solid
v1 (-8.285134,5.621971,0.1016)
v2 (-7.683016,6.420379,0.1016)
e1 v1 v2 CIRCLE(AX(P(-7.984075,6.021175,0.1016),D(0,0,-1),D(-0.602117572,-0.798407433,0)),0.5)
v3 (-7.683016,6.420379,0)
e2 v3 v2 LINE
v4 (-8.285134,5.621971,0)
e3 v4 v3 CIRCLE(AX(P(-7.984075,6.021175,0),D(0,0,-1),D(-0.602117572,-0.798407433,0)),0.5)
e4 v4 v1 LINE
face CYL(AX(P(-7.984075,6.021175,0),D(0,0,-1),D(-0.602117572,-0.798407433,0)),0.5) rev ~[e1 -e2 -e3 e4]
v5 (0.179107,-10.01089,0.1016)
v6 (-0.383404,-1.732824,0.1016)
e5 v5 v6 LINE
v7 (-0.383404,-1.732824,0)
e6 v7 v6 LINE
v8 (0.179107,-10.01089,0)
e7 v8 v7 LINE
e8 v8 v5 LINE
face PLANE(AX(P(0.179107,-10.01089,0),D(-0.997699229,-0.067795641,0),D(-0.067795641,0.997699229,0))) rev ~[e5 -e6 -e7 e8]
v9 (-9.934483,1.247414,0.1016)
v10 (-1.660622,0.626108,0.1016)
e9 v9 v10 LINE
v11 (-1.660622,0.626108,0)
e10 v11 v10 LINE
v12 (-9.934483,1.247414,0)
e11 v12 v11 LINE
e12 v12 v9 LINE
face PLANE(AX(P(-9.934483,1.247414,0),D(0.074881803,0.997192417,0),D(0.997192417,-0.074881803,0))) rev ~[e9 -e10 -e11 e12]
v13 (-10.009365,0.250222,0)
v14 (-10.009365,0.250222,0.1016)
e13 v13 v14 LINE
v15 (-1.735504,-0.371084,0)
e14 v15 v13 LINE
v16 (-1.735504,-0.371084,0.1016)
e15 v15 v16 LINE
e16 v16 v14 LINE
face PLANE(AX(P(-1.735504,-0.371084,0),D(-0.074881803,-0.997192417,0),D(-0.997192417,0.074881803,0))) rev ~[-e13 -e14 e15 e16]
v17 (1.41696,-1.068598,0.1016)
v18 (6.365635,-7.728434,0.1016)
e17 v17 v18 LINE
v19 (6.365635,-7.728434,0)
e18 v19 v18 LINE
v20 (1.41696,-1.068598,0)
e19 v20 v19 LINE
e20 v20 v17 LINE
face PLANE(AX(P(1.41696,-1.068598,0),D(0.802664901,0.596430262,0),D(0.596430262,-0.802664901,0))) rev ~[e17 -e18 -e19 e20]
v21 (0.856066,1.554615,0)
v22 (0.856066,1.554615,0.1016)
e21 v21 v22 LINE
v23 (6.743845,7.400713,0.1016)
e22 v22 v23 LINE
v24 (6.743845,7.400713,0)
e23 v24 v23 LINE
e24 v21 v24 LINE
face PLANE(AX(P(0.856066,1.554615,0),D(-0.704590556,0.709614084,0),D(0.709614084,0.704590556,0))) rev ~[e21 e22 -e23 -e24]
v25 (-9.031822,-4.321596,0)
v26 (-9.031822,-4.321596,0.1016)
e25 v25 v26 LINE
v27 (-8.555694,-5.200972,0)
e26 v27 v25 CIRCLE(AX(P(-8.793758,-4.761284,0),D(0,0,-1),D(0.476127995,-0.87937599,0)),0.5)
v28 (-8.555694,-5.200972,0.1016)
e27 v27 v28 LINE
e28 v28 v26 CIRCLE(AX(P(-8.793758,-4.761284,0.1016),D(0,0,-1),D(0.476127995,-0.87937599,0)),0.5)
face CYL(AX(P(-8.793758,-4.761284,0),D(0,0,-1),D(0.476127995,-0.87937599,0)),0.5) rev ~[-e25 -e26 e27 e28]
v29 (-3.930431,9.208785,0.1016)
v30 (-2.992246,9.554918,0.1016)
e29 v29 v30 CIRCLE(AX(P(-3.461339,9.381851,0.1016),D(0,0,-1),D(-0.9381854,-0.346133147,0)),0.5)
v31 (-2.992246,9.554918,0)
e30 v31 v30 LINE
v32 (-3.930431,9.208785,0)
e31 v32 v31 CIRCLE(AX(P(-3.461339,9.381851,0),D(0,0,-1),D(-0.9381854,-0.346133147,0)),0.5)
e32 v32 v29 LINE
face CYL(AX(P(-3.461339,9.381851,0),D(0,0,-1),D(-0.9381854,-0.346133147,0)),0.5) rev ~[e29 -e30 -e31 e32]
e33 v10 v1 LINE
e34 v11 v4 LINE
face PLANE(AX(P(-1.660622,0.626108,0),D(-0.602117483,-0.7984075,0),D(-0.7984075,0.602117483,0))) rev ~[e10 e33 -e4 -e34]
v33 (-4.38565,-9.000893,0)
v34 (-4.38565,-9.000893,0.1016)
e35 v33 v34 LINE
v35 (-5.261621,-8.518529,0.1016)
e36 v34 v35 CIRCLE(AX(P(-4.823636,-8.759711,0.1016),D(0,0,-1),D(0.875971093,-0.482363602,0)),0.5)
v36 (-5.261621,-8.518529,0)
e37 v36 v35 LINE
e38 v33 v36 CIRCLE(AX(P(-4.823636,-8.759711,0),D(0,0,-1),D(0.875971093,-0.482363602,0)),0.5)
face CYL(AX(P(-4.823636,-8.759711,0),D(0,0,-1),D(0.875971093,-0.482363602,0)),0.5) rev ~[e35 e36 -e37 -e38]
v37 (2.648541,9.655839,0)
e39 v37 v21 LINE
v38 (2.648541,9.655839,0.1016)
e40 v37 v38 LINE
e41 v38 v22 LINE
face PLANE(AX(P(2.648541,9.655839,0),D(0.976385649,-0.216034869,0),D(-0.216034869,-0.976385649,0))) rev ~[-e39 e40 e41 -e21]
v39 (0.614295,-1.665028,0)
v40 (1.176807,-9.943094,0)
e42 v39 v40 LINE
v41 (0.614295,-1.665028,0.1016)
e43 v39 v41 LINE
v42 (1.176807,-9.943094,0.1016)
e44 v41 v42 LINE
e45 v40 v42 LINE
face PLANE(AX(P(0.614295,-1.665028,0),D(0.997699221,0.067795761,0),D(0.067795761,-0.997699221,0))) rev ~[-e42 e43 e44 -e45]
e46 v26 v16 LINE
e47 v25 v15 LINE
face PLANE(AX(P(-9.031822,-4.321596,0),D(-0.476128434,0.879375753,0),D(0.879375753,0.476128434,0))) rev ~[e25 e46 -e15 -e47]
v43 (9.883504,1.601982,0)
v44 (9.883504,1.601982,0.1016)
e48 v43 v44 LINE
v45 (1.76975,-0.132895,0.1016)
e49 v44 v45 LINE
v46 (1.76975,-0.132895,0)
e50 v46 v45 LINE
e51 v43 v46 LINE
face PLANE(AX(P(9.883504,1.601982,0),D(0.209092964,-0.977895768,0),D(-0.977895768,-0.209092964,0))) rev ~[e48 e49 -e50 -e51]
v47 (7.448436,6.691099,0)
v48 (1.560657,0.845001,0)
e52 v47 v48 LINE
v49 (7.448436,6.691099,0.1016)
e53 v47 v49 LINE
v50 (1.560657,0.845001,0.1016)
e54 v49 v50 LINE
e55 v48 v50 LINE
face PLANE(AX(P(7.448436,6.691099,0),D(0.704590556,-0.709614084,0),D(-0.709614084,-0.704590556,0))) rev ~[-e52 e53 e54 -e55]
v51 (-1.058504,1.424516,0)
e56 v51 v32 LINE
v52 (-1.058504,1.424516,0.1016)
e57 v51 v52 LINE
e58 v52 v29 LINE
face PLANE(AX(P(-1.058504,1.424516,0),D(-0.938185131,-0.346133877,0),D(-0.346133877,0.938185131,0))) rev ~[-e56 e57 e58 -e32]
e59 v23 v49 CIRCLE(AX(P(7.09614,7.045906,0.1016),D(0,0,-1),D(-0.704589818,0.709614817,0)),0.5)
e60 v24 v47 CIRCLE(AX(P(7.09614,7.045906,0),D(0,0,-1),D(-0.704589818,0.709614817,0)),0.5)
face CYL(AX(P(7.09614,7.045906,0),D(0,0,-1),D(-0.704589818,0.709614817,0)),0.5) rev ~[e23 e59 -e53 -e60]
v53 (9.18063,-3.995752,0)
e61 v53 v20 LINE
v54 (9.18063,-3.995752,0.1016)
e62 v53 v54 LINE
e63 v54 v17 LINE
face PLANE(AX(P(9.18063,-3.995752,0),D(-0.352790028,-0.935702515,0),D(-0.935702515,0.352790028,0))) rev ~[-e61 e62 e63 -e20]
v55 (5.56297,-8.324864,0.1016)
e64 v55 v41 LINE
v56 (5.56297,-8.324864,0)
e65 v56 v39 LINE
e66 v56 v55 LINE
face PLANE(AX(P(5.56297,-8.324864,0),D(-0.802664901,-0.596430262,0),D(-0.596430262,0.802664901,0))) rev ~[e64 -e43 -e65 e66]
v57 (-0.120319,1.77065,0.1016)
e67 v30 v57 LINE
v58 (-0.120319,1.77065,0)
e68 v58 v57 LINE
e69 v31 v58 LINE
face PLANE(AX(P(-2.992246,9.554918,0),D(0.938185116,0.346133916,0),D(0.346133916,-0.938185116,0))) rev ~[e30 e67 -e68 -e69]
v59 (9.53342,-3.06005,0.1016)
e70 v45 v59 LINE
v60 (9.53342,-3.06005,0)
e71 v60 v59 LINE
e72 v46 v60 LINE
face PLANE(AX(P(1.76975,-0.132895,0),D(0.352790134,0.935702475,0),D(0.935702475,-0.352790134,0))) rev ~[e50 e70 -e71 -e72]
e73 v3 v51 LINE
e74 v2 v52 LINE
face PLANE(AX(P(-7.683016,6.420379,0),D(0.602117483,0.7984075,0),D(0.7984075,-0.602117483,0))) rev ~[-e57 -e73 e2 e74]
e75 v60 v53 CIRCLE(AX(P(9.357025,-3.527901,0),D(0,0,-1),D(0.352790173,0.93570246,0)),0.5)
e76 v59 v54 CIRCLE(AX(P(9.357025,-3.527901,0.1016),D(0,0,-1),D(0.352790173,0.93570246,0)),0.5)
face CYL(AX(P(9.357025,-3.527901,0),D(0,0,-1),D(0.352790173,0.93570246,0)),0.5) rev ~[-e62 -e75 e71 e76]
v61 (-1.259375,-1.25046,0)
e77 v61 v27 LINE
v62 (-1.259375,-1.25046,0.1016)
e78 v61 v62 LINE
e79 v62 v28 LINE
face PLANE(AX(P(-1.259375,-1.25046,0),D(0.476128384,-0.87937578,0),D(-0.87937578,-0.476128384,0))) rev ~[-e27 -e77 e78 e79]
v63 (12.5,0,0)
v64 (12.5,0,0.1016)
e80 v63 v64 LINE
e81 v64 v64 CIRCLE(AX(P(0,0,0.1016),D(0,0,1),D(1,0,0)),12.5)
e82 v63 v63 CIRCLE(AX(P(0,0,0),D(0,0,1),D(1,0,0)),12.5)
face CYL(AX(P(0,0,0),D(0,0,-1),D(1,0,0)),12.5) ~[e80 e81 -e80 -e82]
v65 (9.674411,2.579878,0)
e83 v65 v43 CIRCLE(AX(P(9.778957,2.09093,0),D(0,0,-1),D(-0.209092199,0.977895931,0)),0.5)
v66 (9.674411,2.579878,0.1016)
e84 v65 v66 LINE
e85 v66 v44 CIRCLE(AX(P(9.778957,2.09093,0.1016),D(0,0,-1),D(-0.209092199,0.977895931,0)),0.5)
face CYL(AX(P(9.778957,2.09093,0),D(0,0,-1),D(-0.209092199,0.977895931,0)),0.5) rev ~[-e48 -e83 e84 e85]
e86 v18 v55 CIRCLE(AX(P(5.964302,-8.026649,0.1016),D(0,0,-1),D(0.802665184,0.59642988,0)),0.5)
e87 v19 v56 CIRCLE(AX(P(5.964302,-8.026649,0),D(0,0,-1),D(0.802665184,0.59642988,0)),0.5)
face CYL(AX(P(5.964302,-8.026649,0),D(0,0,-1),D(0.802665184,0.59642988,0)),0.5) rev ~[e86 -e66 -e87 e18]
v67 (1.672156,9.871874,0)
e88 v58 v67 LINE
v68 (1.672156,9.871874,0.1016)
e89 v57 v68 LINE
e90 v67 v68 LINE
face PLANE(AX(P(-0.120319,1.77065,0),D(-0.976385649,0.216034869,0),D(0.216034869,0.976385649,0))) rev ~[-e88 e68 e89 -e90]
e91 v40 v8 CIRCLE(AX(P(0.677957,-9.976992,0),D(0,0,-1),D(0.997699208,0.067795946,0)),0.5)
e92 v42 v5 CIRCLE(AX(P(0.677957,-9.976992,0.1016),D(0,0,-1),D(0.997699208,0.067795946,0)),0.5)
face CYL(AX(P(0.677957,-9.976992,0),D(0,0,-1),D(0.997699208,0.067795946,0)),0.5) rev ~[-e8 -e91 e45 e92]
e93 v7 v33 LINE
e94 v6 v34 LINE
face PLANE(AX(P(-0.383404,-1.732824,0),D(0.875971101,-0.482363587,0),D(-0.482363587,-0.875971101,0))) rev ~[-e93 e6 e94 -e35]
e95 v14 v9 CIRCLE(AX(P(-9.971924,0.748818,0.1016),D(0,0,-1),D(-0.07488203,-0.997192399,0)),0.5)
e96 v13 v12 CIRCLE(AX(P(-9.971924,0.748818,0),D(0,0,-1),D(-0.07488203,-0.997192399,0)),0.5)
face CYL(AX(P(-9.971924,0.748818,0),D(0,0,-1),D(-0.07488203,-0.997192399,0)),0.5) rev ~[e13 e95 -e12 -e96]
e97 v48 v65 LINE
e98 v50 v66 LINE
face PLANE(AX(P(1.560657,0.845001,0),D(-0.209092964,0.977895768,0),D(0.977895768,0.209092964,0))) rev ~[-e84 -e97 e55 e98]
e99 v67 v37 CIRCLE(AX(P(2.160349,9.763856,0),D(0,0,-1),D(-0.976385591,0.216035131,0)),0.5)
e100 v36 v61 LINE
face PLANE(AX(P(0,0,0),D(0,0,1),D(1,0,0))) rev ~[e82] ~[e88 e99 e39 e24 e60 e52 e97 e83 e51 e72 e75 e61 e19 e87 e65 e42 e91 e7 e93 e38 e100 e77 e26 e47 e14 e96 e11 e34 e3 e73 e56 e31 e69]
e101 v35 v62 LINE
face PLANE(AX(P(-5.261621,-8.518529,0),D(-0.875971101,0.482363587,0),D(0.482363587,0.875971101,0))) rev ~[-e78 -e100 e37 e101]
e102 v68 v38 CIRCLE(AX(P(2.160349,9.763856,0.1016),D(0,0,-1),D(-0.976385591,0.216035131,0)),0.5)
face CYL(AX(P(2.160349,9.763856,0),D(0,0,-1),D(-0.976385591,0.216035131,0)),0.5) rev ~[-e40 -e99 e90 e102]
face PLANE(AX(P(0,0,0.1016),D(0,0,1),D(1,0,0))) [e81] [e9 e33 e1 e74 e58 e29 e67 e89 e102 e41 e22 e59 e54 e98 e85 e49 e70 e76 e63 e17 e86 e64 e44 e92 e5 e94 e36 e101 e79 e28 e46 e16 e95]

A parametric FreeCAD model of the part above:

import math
import FreeCAD as App
import Part
import Sketcher

doc = App.newDocument("Part")
body = doc.addObject("PartDesign::Body", "Body")

sketch1 = body.newObject("Sketcher::SketchObject", "Sketch")
sketch1.AttachmentSupport = (doc.getObject("XY_Plane"), [""])
sketch1.MapMode = "FlatFace"
sketch1.addGeometry([
    Part.Circle(App.Vector(0, 0, 0), App.Vector(0, 0, 1), 12.5),
    Part.ArcOfCircle(Part.Circle(App.Vector(2.160349, 9.763856, 0), App.Vector(0, 0, 1), 0.5), math.radians(-12.476263), math.radians(167.523737)),
    Part.LineSegment(App.Vector(2.648541, 9.655839, 0), App.Vector(0.856066, 1.554615, 0)),
    Part.LineSegment(App.Vector(0.856066, 1.554615, 0), App.Vector(6.743845, 7.400713, 0)),
    Part.ArcOfCircle(Part.Circle(App.Vector(7.09614, 7.045906, 0), App.Vector(0, 0, 1), 0.5), math.radians(-45.203422), math.radians(134.796416)),
    Part.LineSegment(App.Vector(7.448436, 6.691099, 0), App.Vector(1.560657, 0.845001, 0)),
    Part.LineSegment(App.Vector(1.560657, 0.845001, 0), App.Vector(9.674411, 2.579878, 0)),
    Part.ArcOfCircle(Part.Circle(App.Vector(9.778957, 2.09093, 0), App.Vector(0, 0, 1), 0.5), math.radians(-77.930754), math.radians(102.069158)),
    Part.LineSegment(App.Vector(9.883504, 1.601982, 0), App.Vector(1.76975, -0.132895, 0)),
    Part.LineSegment(App.Vector(1.76975, -0.132895, 0), App.Vector(9.53342, -3.06005, 0)),
    Part.ArcOfCircle(Part.Circle(App.Vector(9.357025, -3.527901, 0), App.Vector(0, 0, 1), 0.5), math.radians(-110.65807), math.radians(69.34193)),
    Part.LineSegment(App.Vector(9.18063, -3.995752, 0), App.Vector(1.41696, -1.068598, 0)),
    Part.LineSegment(App.Vector(1.41696, -1.068598, 0), App.Vector(6.365635, -7.728434, 0)),
    Part.ArcOfCircle(Part.Circle(App.Vector(5.964302, -8.026649, 0), App.Vector(0, 0, 1), 0.5), math.radians(-143.385344), math.radians(36.614632)),
    Part.LineSegment(App.Vector(5.56297, -8.324864, 0), App.Vector(0.614295, -1.665028, 0)),
    Part.LineSegment(App.Vector(0.614295, -1.665028, 0), App.Vector(1.176807, -9.943094, 0)),
    Part.ArcOfCircle(Part.Circle(App.Vector(0.677957, -9.976992, 0), App.Vector(0, 0, 1), 0.5), math.radians(-176.112597), math.radians(3.887403)),
    Part.LineSegment(App.Vector(0.179107, -10.01089, 0), App.Vector(-0.383404, -1.732824, 0)),
    Part.LineSegment(App.Vector(-0.383404, -1.732824, 0), App.Vector(-4.38565, -9.000893, 0)),
    Part.ArcOfCircle(Part.Circle(App.Vector(-4.823636, -8.759711, 0), App.Vector(0, 0, 1), 0.5), math.radians(151.160068), math.radians(331.160113)),
    Part.LineSegment(App.Vector(-5.261621, -8.518529, 0), App.Vector(-1.259375, -1.25046, 0)),
    Part.LineSegment(App.Vector(-1.259375, -1.25046, 0), App.Vector(-8.555694, -5.200972, 0)),
    Part.ArcOfCircle(Part.Circle(App.Vector(-8.793758, -4.761284, 0), App.Vector(0, 0, 1), 0.5), math.radians(118.432819), math.radians(298.432819)),
    Part.LineSegment(App.Vector(-9.031822, -4.321596, 0), App.Vector(-1.735504, -0.371084, 0)),
    Part.LineSegment(App.Vector(-1.735504, -0.371084, 0), App.Vector(-10.009365, 0.250222, 0)),
    Part.ArcOfCircle(Part.Circle(App.Vector(-9.971924, 0.748818, 0), App.Vector(0, 0, 1), 0.5), math.radians(85.705556), math.radians(265.705556)),
    Part.LineSegment(App.Vector(-9.934483, 1.247414, 0), App.Vector(-1.660622, 0.626108, 0)),
    Part.LineSegment(App.Vector(-1.660622, 0.626108, 0), App.Vector(-8.285134, 5.621971, 0)),
    Part.ArcOfCircle(Part.Circle(App.Vector(-7.984075, 6.021175, 0), App.Vector(0, 0, 1), 0.5), math.radians(52.978291), math.radians(232.978291)),
    Part.LineSegment(App.Vector(-7.683016, 6.420379, 0), App.Vector(-1.058504, 1.424516, 0)),
    Part.LineSegment(App.Vector(-1.058504, 1.424516, 0), App.Vector(-3.930431, 9.208785, 0)),
    Part.ArcOfCircle(Part.Circle(App.Vector(-3.461339, 9.381851, 0), App.Vector(0, 0, 1), 0.5), math.radians(20.250983), math.radians(200.250983)),
    Part.LineSegment(App.Vector(-2.992246, 9.554918, 0), App.Vector(-0.120319, 1.77065, 0)),
    Part.LineSegment(App.Vector(-0.120319, 1.77065, 0), App.Vector(1.672156, 9.871874, 0)),
], False)
sketch1.addConstraint([
    Sketcher.Constraint("Coincident", 1, 1, 2, 1),
    Sketcher.Constraint("Coincident", 2, 2, 3, 1),
    Sketcher.Constraint("Coincident", 3, 2, 4, 2),
    Sketcher.Constraint("Coincident", 4, 1, 5, 1),
    Sketcher.Constraint("Coincident", 5, 2, 6, 1),
    Sketcher.Constraint("Coincident", 6, 2, 7, 2),
    Sketcher.Constraint("Coincident", 7, 1, 8, 1),
    Sketcher.Constraint("Coincident", 8, 2, 9, 1),
    Sketcher.Constraint("Coincident", 9, 2, 10, 2),
    Sketcher.Constraint("Coincident", 10, 1, 11, 1),
    Sketcher.Constraint("Coincident", 11, 2, 12, 1),
    Sketcher.Constraint("Coincident", 12, 2, 13, 2),
    Sketcher.Constraint("Coincident", 13, 1, 14, 1),
    Sketcher.Constraint("Coincident", 14, 2, 15, 1),
    Sketcher.Constraint("Coincident", 15, 2, 16, 2),
    Sketcher.Constraint("Coincident", 16, 1, 17, 1),
    Sketcher.Constraint("Coincident", 17, 2, 18, 1),
    Sketcher.Constraint("Coincident", 18, 2, 19, 2),
    Sketcher.Constraint("Coincident", 19, 1, 20, 1),
    Sketcher.Constraint("Coincident", 20, 2, 21, 1),
    Sketcher.Constraint("Coincident", 21, 2, 22, 2),
    Sketcher.Constraint("Coincident", 22, 1, 23, 1),
    Sketcher.Constraint("Coincident", 23, 2, 24, 1),
    Sketcher.Constraint("Coincident", 24, 2, 25, 2),
    Sketcher.Constraint("Coincident", 25, 1, 26, 1),
    Sketcher.Constraint("Coincident", 26, 2, 27, 1),
    Sketcher.Constraint("Coincident", 27, 2, 28, 2),
    Sketcher.Constraint("Coincident", 28, 1, 29, 1),
    Sketcher.Constraint("Coincident", 29, 2, 30, 1),
    Sketcher.Constraint("Coincident", 30, 2, 31, 2),
    Sketcher.Constraint("Coincident", 31, 1, 32, 1),
    Sketcher.Constraint("Coincident", 32, 2, 33, 1),
    Sketcher.Constraint("Coincident", 33, 2, 1, 2),
    Sketcher.Constraint("Coincident", 0, 3, -1, 1),
    Sketcher.Constraint("Diameter", 0, 25.0),
    Sketcher.Constraint("Radius", 1, 0.5),
    Sketcher.Constraint("Radius", 4, 0.5),
    Sketcher.Constraint("Radius", 7, 0.5),
    Sketcher.Constraint("Radius", 10, 0.5),
    Sketcher.Constraint("Radius", 13, 0.5),
    Sketcher.Constraint("Radius", 16, 0.5),
    Sketcher.Constraint("Radius", 19, 0.5),
    Sketcher.Constraint("Radius", 22, 0.5),
    Sketcher.Constraint("Radius", 25, 0.5),
    Sketcher.Constraint("Radius", 28, 0.5),
    Sketcher.Constraint("Radius", 31, 0.5),
    Sketcher.Constraint("DistanceY", -1, 1, 5, 2, 0.845001),
    Sketcher.Constraint("DistanceX", 16, 3, 7, 3, 9.101),
    Sketcher.Constraint("DistanceX", 23, 2, 29, 2, 0.677),
    Sketcher.Constraint("DistanceY", 10, 3, -1, 1, 3.527901),
    Sketcher.Constraint("DistanceY", -1, 1, 4, 1, 6.691099),
    Sketcher.Constraint("DistanceY", 22, 3, 25, 3, 5.510102),
    Sketcher.Constraint("DistanceX", 1, 1, 4, 3, 4.447599),
    Sketcher.Constraint("DistanceX", 5, 2, 7, 3, 8.2183),
    Sketcher.Constraint("DistanceY", 13, 3, 9, 2, 4.966599),
    Sketcher.Constraint("DistanceY", 10, 1, 9, 2, 0.935702),
    Sketcher.Constraint("DistanceY", 11, 2, 5, 2, 1.913599),
    Sketcher.Constraint("DistanceY", 16, 1, 16, 3, 0.033898),
    Sketcher.Constraint("DistanceX", 16, 1, 15, 2, 0.9977),
    Sketcher.Constraint("DistanceX", 17, 2, 14, 2, 0.997699),
    Sketcher.Constraint("DistanceY", 16, 3, 18, 2, 0.976099),
    Sketcher.Constraint("DistanceX", 22, 1, 19, 1, 3.770201),
    Sketcher.Constraint("DistanceX", 23, 2, 17, 2, 1.3521),
    Sketcher.Constraint("DistanceY", 23, 2, 2, 2, 1.925699),
    Sketcher.Constraint("DistanceY", 22, 3, 25, 1, 6.008698),
    Sketcher.Constraint("DistanceY", 29, 2, 2, 2, 0.130099),
    Sketcher.Constraint("DistanceX", 31, 1, 33, 2, 4.664402),
    Sketcher.Constraint("DistanceX", -1, 1, 1, 3, 2.160349),
    Sketcher.Constraint("DistanceX", -1, 1, 4, 3, 7.09614),
    Sketcher.Constraint("DistanceY", -1, 1, 7, 3, 2.09093),
    Sketcher.Constraint("DistanceY", 13, 3, -1, 1, 8.026649),
    Sketcher.Constraint("DistanceY", 16, 3, -1, 1, 9.976992),
    Sketcher.Constraint("DistanceY", 19, 3, -1, 1, 8.759711),
    Sketcher.Constraint("DistanceX", 31, 3, -1, 1, 3.461339),
    Sketcher.Constraint("DistanceY", -1, 1, 31, 3, 9.381851),
    Sketcher.Constraint("DistanceY", -1, 1, 1, 1, 9.655839),
    Sketcher.Constraint("DistanceX", -1, 1, 6, 2, 9.674411),
    Sketcher.Constraint("DistanceX", -1, 1, 8, 2, 1.76975),
    Sketcher.Constraint("DistanceX", -1, 1, 9, 2, 9.53342),
    Sketcher.Constraint("DistanceX", -1, 1, 11, 2, 1.41696),
    Sketcher.Constraint("DistanceX", -1, 1, 13, 1, 5.56297),
    Sketcher.Constraint("DistanceX", 18, 2, -1, 1, 4.38565),
    Sketcher.Constraint("DistanceX", 19, 1, -1, 1, 5.261621),
    Sketcher.Constraint("DistanceY", 20, 2, -1, 1, 1.25046),
    Sketcher.Constraint("DistanceY", -1, 1, 27, 2, 5.621971),
    Sketcher.Constraint("DistanceY", -1, 1, 28, 1, 6.420379),
    Sketcher.Constraint("DistanceX", 30, 2, -1, 1, 3.930431),
    Sketcher.Constraint("DistanceY", -1, 1, 31, 1, 9.554918),
    Sketcher.Constraint("DistanceX", 32, 2, -1, 1, 0.120319),
    Sketcher.Constraint("DistanceY", -1, 1, 32, 2, 1.77065),
    Sketcher.Constraint("DistanceY", 4, 3, 1, 3, 2.717951),
    Sketcher.Constraint("DistanceX", 1, 3, 7, 3, 7.618609),
    Sketcher.Constraint("DistanceX", 19, 3, 13, 3, 10.787938),
    Sketcher.Constraint("DistanceX", 22, 3, 13, 3, 14.75806),
    Sketcher.Constraint("DistanceY", 22, 3, 1, 3, 14.52514),
    Sketcher.Constraint("DistanceX", 25, 3, 19, 3, 5.148288),
    Sketcher.Constraint("DistanceX", 25, 3, 28, 3, 1.987849),
    Sketcher.Constraint("DistanceY", 28, 3, 1, 3, 3.742681),
    Sketcher.Constraint("DistanceY", 2, 2, 4, 3, 5.491291),
    Sketcher.Constraint("DistanceX", 2, 2, 3, 2, 5.887779),
    Sketcher.Constraint("DistanceX", 3, 2, 4, 1, 0.704591),
    Sketcher.Constraint("DistanceX", 10, 3, 7, 1, 0.526479),
    Sketcher.Constraint("DistanceY", 8, 2, 2, 2, 1.68751),
    Sketcher.Constraint("DistanceX", 12, 2, 10, 3, 2.99139),
    Sketcher.Constraint("DistanceY", 14, 2, 11, 2, 0.59643),
    Sketcher.Constraint("DistanceX", 14, 2, 5, 2, 0.946362),
    Sketcher.Constraint("DistanceY", 17, 2, 8, 2, 1.599929),
    Sketcher.Constraint("DistanceX", 20, 2, 17, 2, 0.875971),
    Sketcher.Constraint("DistanceY", 21, 2, 22, 3, 0.439688),
    Sketcher.Constraint("DistanceX", 24, 2, 25, 3, 0.037441),
    Sketcher.Constraint("DistanceX", 23, 2, 26, 2, 0.074882),
    Sketcher.Constraint("DistanceY", 17, 2, 26, 2, 2.358932),
])
pad1 = body.newObject("PartDesign::Pad", "Pad")
pad1.Profile = sketch1
pad1.Length = 0.1016

doc.recompute()
